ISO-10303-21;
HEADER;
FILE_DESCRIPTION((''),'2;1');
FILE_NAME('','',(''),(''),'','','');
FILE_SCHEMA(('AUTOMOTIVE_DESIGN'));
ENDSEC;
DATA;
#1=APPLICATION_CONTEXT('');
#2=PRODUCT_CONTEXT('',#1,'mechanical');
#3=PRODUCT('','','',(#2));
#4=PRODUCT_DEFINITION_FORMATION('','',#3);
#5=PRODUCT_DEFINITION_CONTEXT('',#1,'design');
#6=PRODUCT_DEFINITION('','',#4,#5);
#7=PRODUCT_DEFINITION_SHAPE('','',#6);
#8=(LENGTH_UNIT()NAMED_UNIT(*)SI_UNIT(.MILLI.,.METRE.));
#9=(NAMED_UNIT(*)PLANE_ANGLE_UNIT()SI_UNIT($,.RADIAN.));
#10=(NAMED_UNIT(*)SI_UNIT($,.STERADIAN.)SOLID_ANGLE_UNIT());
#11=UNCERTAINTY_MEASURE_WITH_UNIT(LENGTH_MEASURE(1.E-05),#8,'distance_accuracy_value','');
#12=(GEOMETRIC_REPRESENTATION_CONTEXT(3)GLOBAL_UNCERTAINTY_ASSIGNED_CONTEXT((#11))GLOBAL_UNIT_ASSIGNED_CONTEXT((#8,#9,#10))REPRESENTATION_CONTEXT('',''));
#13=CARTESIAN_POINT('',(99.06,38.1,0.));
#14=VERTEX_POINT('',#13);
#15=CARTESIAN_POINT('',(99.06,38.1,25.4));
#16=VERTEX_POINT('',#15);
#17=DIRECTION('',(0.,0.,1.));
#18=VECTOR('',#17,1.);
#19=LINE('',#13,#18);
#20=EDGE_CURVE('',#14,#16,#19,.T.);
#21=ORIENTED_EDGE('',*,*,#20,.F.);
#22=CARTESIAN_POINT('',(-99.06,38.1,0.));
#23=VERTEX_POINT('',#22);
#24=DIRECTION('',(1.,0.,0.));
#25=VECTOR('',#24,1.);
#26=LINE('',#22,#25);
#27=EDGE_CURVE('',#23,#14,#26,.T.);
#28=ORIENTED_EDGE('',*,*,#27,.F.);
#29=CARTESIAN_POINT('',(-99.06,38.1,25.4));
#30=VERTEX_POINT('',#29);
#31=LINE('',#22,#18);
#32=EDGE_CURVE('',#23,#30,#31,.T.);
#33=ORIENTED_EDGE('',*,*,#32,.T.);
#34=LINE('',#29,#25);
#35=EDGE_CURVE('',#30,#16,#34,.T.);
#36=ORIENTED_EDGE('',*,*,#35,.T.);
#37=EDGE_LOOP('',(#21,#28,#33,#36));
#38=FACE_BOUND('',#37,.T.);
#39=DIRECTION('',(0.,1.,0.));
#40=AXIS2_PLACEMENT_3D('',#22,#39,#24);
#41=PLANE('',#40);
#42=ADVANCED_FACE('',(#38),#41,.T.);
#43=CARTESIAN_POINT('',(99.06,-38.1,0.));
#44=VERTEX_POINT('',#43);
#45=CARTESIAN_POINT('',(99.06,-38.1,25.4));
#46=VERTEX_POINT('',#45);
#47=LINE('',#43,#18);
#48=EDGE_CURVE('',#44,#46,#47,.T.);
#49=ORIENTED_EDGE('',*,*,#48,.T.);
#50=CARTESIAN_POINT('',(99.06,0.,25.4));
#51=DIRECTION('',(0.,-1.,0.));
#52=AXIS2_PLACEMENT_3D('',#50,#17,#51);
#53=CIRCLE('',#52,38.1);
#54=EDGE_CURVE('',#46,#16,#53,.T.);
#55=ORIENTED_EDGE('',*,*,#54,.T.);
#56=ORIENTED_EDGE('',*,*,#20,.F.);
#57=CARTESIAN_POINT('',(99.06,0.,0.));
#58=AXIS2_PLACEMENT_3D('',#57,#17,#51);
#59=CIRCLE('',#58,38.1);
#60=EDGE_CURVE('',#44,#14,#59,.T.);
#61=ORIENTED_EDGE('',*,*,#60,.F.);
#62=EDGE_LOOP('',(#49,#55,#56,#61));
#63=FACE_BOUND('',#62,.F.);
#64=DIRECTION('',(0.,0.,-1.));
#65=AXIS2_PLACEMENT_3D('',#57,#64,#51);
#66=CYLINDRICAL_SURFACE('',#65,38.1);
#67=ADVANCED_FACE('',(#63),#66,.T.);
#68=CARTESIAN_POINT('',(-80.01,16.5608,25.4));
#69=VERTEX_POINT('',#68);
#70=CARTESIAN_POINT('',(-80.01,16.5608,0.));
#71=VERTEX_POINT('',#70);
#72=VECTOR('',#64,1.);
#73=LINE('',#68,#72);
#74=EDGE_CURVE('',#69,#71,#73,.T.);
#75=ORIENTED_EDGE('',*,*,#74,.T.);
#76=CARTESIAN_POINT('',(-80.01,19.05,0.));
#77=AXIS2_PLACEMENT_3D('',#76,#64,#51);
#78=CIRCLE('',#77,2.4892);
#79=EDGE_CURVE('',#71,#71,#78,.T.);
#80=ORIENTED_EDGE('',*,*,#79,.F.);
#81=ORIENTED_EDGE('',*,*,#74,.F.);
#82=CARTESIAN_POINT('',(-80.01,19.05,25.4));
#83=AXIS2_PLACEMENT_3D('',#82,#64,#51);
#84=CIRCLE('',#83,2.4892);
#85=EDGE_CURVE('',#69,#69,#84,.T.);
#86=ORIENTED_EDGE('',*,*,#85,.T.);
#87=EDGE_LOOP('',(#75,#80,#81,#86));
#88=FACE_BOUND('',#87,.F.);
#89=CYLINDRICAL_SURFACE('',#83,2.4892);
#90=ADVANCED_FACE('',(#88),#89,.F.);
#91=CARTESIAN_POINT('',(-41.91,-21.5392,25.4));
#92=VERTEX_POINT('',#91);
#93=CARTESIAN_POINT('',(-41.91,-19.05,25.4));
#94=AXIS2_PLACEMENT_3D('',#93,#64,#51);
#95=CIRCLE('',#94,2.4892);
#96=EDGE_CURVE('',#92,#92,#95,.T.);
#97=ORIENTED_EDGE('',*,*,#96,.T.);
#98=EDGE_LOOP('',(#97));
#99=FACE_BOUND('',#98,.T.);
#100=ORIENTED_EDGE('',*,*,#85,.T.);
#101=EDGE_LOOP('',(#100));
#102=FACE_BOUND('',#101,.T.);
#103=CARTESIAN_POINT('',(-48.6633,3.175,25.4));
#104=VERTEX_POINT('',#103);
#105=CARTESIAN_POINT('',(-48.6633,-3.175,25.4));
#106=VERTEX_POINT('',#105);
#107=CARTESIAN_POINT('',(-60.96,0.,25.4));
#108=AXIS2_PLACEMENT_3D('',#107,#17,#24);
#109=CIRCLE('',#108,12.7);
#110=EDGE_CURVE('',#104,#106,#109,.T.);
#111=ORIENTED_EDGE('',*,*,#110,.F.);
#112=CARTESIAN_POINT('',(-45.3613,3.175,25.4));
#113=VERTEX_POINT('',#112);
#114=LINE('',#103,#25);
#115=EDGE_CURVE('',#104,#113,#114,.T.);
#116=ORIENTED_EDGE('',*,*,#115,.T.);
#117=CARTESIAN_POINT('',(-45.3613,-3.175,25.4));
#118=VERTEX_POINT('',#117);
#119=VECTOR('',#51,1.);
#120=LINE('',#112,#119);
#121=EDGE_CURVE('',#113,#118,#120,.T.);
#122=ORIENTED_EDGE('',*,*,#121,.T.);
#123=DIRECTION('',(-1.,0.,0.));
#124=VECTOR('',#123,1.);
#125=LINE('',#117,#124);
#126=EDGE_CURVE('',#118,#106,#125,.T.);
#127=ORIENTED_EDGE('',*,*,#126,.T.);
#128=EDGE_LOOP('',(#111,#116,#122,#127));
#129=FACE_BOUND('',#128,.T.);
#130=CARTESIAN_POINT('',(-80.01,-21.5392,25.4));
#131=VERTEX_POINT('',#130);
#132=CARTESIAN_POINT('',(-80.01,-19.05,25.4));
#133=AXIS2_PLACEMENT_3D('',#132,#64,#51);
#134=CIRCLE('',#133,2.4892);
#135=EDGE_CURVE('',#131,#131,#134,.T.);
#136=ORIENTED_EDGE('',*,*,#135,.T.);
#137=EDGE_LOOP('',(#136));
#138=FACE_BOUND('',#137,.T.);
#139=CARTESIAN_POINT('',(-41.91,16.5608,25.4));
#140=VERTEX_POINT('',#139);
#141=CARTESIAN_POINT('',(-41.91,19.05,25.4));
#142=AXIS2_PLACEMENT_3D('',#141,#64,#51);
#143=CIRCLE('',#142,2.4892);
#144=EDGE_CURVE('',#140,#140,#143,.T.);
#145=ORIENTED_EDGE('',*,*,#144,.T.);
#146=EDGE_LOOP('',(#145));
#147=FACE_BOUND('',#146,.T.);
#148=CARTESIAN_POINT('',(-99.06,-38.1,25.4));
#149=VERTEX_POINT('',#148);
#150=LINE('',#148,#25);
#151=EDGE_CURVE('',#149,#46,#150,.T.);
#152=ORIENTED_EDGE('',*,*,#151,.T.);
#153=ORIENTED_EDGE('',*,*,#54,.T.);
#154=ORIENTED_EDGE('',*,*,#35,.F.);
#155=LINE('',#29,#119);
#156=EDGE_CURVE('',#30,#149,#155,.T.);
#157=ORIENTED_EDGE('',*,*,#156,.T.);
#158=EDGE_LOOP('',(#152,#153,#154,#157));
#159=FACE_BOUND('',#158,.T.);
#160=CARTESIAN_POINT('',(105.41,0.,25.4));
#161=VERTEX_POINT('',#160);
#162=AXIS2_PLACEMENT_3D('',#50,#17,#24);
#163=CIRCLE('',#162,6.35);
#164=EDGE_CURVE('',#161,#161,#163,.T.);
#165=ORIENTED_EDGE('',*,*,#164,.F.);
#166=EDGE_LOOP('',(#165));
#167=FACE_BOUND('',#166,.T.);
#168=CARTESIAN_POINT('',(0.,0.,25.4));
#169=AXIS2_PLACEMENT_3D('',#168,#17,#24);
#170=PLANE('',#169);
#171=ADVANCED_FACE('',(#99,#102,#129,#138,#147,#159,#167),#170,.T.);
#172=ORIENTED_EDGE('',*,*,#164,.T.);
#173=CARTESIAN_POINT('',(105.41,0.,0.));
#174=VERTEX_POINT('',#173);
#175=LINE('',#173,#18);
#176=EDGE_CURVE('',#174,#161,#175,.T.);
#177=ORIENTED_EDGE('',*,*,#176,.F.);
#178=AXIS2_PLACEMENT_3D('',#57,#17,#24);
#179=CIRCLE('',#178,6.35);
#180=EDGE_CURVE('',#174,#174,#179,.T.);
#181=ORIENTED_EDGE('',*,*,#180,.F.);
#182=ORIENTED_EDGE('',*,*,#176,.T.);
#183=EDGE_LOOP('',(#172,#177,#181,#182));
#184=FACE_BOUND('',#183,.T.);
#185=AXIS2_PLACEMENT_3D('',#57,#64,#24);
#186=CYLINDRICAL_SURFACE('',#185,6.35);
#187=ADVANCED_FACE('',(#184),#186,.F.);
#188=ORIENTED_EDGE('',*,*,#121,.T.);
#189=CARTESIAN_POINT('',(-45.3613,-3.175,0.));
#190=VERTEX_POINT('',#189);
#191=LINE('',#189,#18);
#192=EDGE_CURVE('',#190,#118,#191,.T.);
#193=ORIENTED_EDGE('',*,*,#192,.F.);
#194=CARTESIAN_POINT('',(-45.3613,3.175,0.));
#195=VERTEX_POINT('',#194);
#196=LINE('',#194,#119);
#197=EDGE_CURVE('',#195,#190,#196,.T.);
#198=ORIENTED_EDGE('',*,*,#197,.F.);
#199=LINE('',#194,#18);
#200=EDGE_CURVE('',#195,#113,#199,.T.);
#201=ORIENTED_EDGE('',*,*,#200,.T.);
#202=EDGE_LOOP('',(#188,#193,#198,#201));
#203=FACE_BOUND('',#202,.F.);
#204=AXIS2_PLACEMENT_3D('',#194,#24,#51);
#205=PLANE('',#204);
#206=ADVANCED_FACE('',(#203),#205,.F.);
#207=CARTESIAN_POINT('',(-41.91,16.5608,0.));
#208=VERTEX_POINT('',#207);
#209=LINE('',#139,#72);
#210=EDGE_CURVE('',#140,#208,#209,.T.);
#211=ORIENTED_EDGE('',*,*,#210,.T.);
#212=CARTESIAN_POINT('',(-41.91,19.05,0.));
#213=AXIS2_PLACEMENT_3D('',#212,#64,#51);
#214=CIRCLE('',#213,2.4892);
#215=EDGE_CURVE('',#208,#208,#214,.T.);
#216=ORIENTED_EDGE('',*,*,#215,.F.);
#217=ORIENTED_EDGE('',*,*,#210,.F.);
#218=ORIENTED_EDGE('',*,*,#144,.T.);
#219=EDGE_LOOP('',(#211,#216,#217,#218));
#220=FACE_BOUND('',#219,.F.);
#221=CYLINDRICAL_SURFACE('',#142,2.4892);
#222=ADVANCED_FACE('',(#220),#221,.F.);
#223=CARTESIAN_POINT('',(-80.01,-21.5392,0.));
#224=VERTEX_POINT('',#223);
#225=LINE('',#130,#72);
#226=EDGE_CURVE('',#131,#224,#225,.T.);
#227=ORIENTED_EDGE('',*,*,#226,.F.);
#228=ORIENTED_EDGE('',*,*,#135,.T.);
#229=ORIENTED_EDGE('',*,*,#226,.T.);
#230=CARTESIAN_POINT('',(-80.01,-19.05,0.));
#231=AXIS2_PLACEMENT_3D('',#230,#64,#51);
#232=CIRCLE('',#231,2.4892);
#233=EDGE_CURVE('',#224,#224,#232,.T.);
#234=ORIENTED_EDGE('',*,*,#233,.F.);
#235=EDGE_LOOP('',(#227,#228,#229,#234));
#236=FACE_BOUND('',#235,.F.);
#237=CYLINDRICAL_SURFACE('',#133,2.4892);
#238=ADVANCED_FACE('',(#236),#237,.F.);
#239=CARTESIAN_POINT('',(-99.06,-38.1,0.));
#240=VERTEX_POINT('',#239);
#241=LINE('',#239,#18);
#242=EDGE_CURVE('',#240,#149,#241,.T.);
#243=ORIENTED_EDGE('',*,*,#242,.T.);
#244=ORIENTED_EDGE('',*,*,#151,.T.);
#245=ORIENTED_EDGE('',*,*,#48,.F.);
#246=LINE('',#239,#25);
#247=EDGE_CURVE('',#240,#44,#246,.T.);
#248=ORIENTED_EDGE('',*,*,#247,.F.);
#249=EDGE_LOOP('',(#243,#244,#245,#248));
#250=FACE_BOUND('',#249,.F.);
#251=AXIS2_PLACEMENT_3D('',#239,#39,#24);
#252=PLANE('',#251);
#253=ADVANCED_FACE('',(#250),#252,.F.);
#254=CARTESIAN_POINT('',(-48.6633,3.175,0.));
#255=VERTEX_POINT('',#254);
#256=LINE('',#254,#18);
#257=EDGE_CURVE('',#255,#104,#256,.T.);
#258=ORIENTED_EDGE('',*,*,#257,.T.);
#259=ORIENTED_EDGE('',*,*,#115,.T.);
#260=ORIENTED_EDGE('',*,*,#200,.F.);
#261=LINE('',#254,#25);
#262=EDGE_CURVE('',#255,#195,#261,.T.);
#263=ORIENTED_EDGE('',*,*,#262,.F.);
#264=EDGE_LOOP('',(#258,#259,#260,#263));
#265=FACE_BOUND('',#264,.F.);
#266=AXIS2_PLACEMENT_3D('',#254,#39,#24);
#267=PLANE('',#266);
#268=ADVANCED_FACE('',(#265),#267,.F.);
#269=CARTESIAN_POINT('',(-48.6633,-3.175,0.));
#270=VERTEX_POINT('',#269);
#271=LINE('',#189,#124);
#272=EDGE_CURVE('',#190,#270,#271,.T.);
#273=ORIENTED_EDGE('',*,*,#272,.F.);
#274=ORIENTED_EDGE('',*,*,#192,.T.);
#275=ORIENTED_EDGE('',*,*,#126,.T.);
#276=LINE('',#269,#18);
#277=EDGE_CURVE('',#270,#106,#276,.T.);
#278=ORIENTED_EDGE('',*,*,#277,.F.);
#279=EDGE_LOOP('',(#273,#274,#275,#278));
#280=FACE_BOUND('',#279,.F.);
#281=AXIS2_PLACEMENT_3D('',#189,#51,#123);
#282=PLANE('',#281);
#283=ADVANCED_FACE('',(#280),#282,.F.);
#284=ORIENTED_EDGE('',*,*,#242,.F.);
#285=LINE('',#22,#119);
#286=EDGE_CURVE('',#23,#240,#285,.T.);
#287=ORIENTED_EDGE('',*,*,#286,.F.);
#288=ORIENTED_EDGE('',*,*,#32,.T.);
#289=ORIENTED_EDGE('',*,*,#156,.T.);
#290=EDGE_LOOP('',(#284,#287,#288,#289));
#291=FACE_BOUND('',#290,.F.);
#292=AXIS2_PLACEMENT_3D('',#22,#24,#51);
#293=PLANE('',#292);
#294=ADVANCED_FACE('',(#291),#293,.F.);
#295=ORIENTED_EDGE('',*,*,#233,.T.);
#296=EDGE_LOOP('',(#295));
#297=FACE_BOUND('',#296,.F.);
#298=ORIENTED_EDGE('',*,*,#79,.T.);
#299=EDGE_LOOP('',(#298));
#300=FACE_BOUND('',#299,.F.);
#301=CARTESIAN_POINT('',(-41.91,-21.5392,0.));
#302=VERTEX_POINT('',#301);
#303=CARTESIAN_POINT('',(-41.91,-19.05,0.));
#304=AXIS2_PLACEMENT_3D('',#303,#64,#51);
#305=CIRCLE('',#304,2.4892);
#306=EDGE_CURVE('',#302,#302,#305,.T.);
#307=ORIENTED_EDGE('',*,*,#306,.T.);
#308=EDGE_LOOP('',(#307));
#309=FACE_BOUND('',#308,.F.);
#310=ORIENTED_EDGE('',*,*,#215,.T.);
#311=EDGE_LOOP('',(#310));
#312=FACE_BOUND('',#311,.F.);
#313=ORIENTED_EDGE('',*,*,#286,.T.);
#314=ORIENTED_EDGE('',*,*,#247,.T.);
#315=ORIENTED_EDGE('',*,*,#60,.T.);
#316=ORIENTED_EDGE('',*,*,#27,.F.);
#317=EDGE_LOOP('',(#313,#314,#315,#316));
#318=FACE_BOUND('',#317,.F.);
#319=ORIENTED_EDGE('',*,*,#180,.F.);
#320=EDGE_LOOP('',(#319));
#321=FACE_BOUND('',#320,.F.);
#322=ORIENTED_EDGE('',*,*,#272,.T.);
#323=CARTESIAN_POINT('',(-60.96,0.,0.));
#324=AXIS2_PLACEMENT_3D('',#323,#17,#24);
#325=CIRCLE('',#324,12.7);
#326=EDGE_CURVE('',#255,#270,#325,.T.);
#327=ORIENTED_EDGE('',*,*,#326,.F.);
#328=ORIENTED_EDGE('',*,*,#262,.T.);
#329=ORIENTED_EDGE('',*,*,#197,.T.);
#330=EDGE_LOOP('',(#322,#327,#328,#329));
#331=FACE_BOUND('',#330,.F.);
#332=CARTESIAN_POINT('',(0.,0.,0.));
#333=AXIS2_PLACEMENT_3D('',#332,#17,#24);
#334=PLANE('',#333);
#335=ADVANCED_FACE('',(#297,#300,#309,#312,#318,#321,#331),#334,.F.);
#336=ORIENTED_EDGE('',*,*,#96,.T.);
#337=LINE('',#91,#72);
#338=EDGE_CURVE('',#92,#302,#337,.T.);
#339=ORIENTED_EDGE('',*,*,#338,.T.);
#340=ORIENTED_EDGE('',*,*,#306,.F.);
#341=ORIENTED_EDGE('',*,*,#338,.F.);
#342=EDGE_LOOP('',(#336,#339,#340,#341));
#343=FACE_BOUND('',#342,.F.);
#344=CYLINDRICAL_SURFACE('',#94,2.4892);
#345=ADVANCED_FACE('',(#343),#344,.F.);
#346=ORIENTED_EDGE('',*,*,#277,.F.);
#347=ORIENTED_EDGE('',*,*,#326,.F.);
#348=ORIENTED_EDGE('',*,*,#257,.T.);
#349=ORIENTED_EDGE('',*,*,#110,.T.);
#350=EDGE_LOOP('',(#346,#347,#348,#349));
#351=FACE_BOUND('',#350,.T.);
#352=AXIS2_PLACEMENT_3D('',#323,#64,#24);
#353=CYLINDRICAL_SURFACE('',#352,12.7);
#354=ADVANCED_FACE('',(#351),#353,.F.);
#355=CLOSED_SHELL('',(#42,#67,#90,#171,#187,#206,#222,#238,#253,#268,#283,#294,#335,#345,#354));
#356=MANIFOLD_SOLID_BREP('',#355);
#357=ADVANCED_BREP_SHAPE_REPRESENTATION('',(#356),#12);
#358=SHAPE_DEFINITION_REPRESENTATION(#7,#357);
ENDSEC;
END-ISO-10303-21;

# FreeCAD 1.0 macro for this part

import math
import FreeCAD as App
import Part
import Sketcher
Q = App.Units.Quantity

doc = App.newDocument("Part")
body = doc.addObject("PartDesign::Body", "Body")

# Sketch on XY plane
sketch1 = body.newObject("Sketcher::SketchObject", "Sketch")
sketch1.AttachmentSupport = (doc.getObject("XY_Plane"), [""])
sketch1.MapMode = "FlatFace"
sketch1.addGeometry(Part.LineSegment(App.Vector(99.1, 38.1, 0), App.Vector(-99.1, 38.1, 0)), False)
sketch1.addGeometry(Part.LineSegment(App.Vector(-99.1, 38.1, 0), App.Vector(-99.1, -38.1, 0)), False)
sketch1.addGeometry(Part.LineSegment(App.Vector(-99.1, -38.1, 0), App.Vector(99.1, -38.1, 0)), False)
sketch1.addGeometry(Part.ArcOfCircle(Part.Circle(App.Vector(99.1, 0, 0), App.Vector(0, 0, 1), 38.1), math.radians(-90), math.radians(90)), False)
sketch1.addGeometry(Part.ArcOfCircle(Part.Circle(App.Vector(-61, 0, 0), App.Vector(0, 0, 1), 12.7), math.radians(14), math.radians(346)), False)
sketch1.addGeometry(Part.LineSegment(App.Vector(-48.7, 3.2, 0), App.Vector(-45.4, 3.2, 0)), False)
sketch1.addGeometry(Part.LineSegment(App.Vector(-45.4, 3.2, 0), App.Vector(-45.4, -3.2, 0)), False)
sketch1.addGeometry(Part.LineSegment(App.Vector(-45.4, -3.2, 0), App.Vector(-48.7, -3.2, 0)), False)
sketch1.addGeometry(Part.Circle(App.Vector(99.1, 0, 0), App.Vector(0, 0, 1), 6.3), False)
sketch1.addConstraint(Sketcher.Constraint("Coincident", 0, 2, 1, 1))
sketch1.addConstraint(Sketcher.Constraint("Coincident", 1, 2, 2, 1))
sketch1.addConstraint(Sketcher.Constraint("Tangent", 2, 2, 3, 1))
sketch1.addConstraint(Sketcher.Constraint("Tangent", 3, 2, 0, 1))
sketch1.addConstraint(Sketcher.Constraint("Coincident", 4, 1, 5, 1))
sketch1.addConstraint(Sketcher.Constraint("Coincident", 5, 2, 6, 1))
sketch1.addConstraint(Sketcher.Constraint("Coincident", 6, 2, 7, 1))
sketch1.addConstraint(Sketcher.Constraint("Coincident", 7, 2, 4, 2))
sketch1.addConstraint(Sketcher.Constraint("Horizontal", 0))
sketch1.addConstraint(Sketcher.Constraint("Vertical", 1))
sketch1.addConstraint(Sketcher.Constraint("Horizontal", 2))
sketch1.addConstraint(Sketcher.Constraint("Horizontal", 5))
sketch1.addConstraint(Sketcher.Constraint("Vertical", 6))
sketch1.addConstraint(Sketcher.Constraint("Horizontal", 7))
sketch1.addConstraint(Sketcher.Constraint("Coincident", 8, 3, 3, 3))
sketch1.addConstraint(Sketcher.Constraint("Symmetric", 0, 2, 2, 2, -1, 1))
sketch1.addConstraint(Sketcher.Constraint("Symmetric", 4, 1, 7, 2, -1))
sketch1.addConstraint(Sketcher.Constraint("Diameter", 8, Q("0.5 in")))
sketch1.addConstraint(Sketcher.Constraint("Radius", 3, Q("1.5 in")))
sketch1.addConstraint(Sketcher.Constraint("Radius", 4, Q("0.5 in")))
sketch1.addConstraint(Sketcher.Constraint("DistanceX", 5, 1, 5, 2, Q("0.13 in")))
sketch1.addConstraint(Sketcher.Constraint("DistanceY", 6, 2, 6, 1, Q("0.25 in")))
sketch1.addConstraint(Sketcher.Constraint("DistanceX", 4, 3, 3, 3, Q("6.3 in")))
sketch1.addConstraint(Sketcher.Constraint("DistanceX", 0, 2, 4, 3, Q("1.5 in")))
pad1 = body.newObject("PartDesign::Pad", "Pad")
pad1.Profile = sketch1
pad1.Length = Q("1 in")

# Sketch on XY plane
sketch2 = body.newObject("Sketcher::SketchObject", "Sketch001")
sketch2.AttachmentSupport = (doc.getObject("XY_Plane"), [""])
sketch2.MapMode = "FlatFace"
sketch2.AttachmentOffset = App.Placement(App.Vector(0, 0, 1 * 25.4), App.Rotation())
sketch2.addGeometry(Part.Circle(App.Vector(-80, 19.1, 0), App.Vector(0, 0, 1), 2.5), False)
sketch2.addGeometry(Part.Circle(App.Vector(-41.9, 19.1, 0), App.Vector(0, 0, 1), 2.5), False)
sketch2.addGeometry(Part.Circle(App.Vector(-41.9, -19.1, 0), App.Vector(0, 0, 1), 2.5), False)
sketch2.addGeometry(Part.Circle(App.Vector(-80, -19.1, 0), App.Vector(0, 0, 1), 2.5), False)
sketch2.addConstraint(Sketcher.Constraint("Equal", 0, 1))
sketch2.addConstraint(Sketcher.Constraint("Equal", 1, 2))
sketch2.addConstraint(Sketcher.Constraint("Equal", 2, 3))
sketch2.addConstraint(Sketcher.Constraint("Symmetric", 1, 3, 2, 3, -1))
sketch2.addConstraint(Sketcher.Constraint("Symmetric", 0, 3, 3, 3, -1))
sketch2.addConstraint(Sketcher.Constraint("Horizontal", 0, 3, 1, 3))
sketch2.addConstraint(Sketcher.Constraint("Diameter", 0, Q("0.196 in")))
sketch2.addConstraint(Sketcher.Constraint("DistanceX", 0, 3, 1, 3, Q("1.5 in")))
sketch2.addConstraint(Sketcher.Constraint("DistanceY", 2, 3, 1, 3, Q("1.5 in")))
sketch2.addConstraint(Sketcher.Constraint("DistanceX", 0, 3, -1, 1, Q("3.15 in")))
doc.recompute()
hole = body.newObject("PartDesign::Hole", "Hole")
hole.Profile = sketch2
hole.ThreadType = "None"
hole.Diameter = Q("0.196 in")
hole.DepthType = "Dimension"
hole.Depth = Q("1 in")
hole.DrillPoint = "Angled"
hole.DrillPointAngle = 118

doc.recompute()
